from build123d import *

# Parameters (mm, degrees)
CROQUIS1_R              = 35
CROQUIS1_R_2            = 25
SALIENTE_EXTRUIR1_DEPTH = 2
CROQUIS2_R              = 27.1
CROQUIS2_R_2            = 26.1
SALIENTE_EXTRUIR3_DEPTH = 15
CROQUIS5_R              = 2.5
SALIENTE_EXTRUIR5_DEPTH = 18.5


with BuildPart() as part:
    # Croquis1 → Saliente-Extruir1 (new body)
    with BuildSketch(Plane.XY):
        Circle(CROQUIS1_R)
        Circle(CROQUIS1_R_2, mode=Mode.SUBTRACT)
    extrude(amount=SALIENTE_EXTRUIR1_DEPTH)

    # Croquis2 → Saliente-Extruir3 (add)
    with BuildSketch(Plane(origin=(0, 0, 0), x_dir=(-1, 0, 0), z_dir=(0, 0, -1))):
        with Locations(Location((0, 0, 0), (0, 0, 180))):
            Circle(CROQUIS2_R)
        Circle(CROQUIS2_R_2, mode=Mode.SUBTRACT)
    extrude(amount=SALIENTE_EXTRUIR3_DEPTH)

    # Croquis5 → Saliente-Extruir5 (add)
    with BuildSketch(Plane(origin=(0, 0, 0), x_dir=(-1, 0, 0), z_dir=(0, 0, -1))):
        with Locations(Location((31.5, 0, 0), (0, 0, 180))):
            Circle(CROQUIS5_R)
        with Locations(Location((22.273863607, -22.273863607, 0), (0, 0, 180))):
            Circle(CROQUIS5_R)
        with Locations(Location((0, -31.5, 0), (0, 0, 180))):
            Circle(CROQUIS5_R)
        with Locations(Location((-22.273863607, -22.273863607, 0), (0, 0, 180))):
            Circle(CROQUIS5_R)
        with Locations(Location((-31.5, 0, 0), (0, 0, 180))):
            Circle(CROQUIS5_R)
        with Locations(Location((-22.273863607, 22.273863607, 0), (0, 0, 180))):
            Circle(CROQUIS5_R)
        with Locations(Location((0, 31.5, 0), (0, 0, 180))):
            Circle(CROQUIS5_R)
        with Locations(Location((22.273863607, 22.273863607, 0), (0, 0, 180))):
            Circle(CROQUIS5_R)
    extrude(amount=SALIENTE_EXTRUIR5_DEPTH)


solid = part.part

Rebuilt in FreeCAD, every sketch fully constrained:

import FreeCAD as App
import Part
import Sketcher

V = App.Vector
Q = App.Units.Quantity

doc = App.newDocument("Part")
body = doc.addObject("PartDesign::Body", "Body")

sketch1 = doc.addObject("Sketcher::SketchObject", "Sketch")
body.addObject(sketch1)
sketch1.AttachmentSupport = (doc.XY_Plane, [""])
sketch1.MapMode = "FlatFace"
sketch1.addGeometry([
    Part.Circle(V(0, 0, 0), V(0, 0, 1), 35),
    Part.Circle(V(0, 0, 0), V(0, 0, 1), 25),
], False)
sketch1.addConstraint([
    Sketcher.Constraint("Coincident", 0, 3, -1, 1),
    Sketcher.Constraint("Coincident", 1, 3, -1, 1),
    Sketcher.Constraint("Diameter", 0, Q("70 mm")),
    Sketcher.Constraint("Diameter", 1, Q("50 mm")),
])
pad1 = doc.addObject("PartDesign::Pad", "Pad")
body.addObject(pad1)
pad1.Profile = sketch1
pad1.Length = 2

sketch2 = doc.addObject("Sketcher::SketchObject", "Sketch001")
body.addObject(sketch2)
sketch2.AttachmentSupport = (doc.XY_Plane, [""])
sketch2.MapMode = "FlatFace"
sketch2.addGeometry([
    Part.Circle(V(0, 0, 0), V(0, 0, 1), 27),
    Part.Circle(V(0, 0, 0), V(0, 0, 1), 26),
], False)
sketch2.addConstraint([
    Sketcher.Constraint("Coincident", 0, 3, -1, 1),
    Sketcher.Constraint("Coincident", 1, 3, -1, 1),
    Sketcher.Constraint("Diameter", 0, Q("54.2 mm")),
    Sketcher.Constraint("Diameter", 1, Q("52.2 mm")),
])
pad2 = doc.addObject("PartDesign::Pad", "Pad001")
body.addObject(pad2)
pad2.Profile = sketch2
pad2.Length = 15
pad2.Reversed = True

sketch3 = doc.addObject("Sketcher::SketchObject", "Sketch002")
body.addObject(sketch3)
sketch3.AttachmentSupport = (doc.XY_Plane, [""])
sketch3.MapMode = "FlatFace"
sketch3.addGeometry([
    Part.Circle(V(-31.5, 0, 0), V(0, 0, 1), 2.5),
    Part.Circle(V(-22.3, -22.3, 0), V(0, 0, 1), 2.5),
    Part.Circle(V(0, -31.5, 0), V(0, 0, 1), 2.5),
    Part.Circle(V(22.3, -22.3, 0), V(0, 0, 1), 2.5),
    Part.Circle(V(31.5, 0, 0), V(0, 0, 1), 2.5),
    Part.Circle(V(22.3, 22.3, 0), V(0, 0, 1), 2.5),
    Part.Circle(V(0, 31.5, 0), V(0, 0, 1), 2.5),
    Part.Circle(V(-22.3, 22.3, 0), V(0, 0, 1), 2.5),
], False)
sketch3.addConstraint([
    Sketcher.Constraint("Equal", 0, 1),
    Sketcher.Constraint("Equal", 1, 2),
    Sketcher.Constraint("Equal", 2, 3),
    Sketcher.Constraint("Equal", 3, 4),
    Sketcher.Constraint("Equal", 4, 5),
    Sketcher.Constraint("Equal", 5, 6),
    Sketcher.Constraint("Equal", 6, 7),
    Sketcher.Constraint("Symmetric", 0, 3, 4, 3, -1, 1),
    Sketcher.Constraint("Symmetric", 1, 3, 5, 3, -1, 1),
    Sketcher.Constraint("Symmetric", 2, 3, 6, 3, -1, 1),
    Sketcher.Constraint("Symmetric", 3, 3, 7, 3, -1, 1),
    Sketcher.Constraint("Symmetric", 1, 3, 3, 3, -2),
    Sketcher.Constraint("PointOnObject", 0, 3, -1),
    Sketcher.Constraint("PointOnObject", 2, 3, -2),
    Sketcher.Constraint("Diameter", 0, Q("5 mm")),
    Sketcher.Constraint("DistanceX", 0, 3, 4, 3, Q("63 mm")),
    Sketcher.Constraint("DistanceY", 2, 3, -1, 1, Q("31.5 mm")),
    Sketcher.Constraint("DistanceX", 1, 3, -1, 1, Q("22.273864 mm")),
    Sketcher.Constraint("DistanceY", 1, 3, -1, 1, Q("22.273864 mm")),
])
pad3 = doc.addObject("PartDesign::Pad", "Pad002")
body.addObject(pad3)
pad3.Profile = sketch3
pad3.Length = 18.5
pad3.Reversed = True

doc.recompute()
